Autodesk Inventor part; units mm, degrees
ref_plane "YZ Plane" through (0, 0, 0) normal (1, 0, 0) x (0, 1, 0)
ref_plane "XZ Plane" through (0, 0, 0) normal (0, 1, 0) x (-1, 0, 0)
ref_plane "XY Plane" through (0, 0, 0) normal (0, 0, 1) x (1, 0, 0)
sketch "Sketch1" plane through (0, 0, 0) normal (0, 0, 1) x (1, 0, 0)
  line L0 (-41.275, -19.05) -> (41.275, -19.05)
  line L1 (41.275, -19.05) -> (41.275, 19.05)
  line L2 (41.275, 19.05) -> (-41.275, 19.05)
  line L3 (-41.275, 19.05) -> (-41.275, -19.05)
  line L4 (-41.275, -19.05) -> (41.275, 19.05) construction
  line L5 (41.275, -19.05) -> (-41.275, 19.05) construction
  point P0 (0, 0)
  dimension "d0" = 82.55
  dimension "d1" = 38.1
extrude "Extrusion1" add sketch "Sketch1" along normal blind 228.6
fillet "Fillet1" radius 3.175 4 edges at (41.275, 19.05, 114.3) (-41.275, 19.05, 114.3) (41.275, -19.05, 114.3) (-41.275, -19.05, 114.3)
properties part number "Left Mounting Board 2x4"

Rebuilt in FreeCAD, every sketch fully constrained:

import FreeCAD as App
import Part
import Sketcher
Q = App.Units.Quantity


def edges_at(feature, points):
    """Names of the edges that pass closest to the given points."""
    edges = feature.Shape.Edges
    near = lambda p: min(range(len(edges)), key=lambda i: edges[i].distToShape(Part.Vertex(*p))[0])
    return sorted({f"Edge{near(p) + 1}" for p in points})

doc = App.newDocument("Part")
body = doc.addObject("PartDesign::Body", "Body")

# Sketch on XY plane
sketch1 = body.newObject("Sketcher::SketchObject", "Sketch")
sketch1.AttachmentSupport = (doc.getObject("XY_Plane"), [""])
sketch1.MapMode = "FlatFace"
sketch1.addGeometry([
    Part.LineSegment(App.Vector(-41, 19, 0), App.Vector(-41, -19, 0)),
    Part.LineSegment(App.Vector(-41, -19, 0), App.Vector(41, -19, 0)),
    Part.LineSegment(App.Vector(41, -19, 0), App.Vector(41, 19, 0)),
    Part.LineSegment(App.Vector(41, 19, 0), App.Vector(-41, 19, 0)),
], False)
sketch1.addConstraint([
    Sketcher.Constraint("Coincident", 0, 2, 1, 1),
    Sketcher.Constraint("Coincident", 1, 2, 2, 1),
    Sketcher.Constraint("Coincident", 2, 2, 3, 1),
    Sketcher.Constraint("Coincident", 3, 2, 0, 1),
    Sketcher.Constraint("Vertical", 0),
    Sketcher.Constraint("Horizontal", 1),
    Sketcher.Constraint("Vertical", 2),
    Sketcher.Constraint("Horizontal", 3),
    Sketcher.Constraint("Symmetric", 0, 2, 2, 2, -1, 1),
    Sketcher.Constraint("DistanceY", 0, 2, 0, 1, Q("1.5 in")),
    Sketcher.Constraint("DistanceX", 1, 1, 1, 2, Q("3.25 in")),
])
pad1 = body.newObject("PartDesign::Pad", "Pad")
pad1.Profile = sketch1
pad1.Length = Q("9 in")
doc.recompute()

fillet = body.newObject("PartDesign::Fillet", "Fillet")
fillet.Base = (pad1, edges_at(pad1, [
    (41.275, 19.05, 114.3),
    (-41.275, 19.05, 114.3),
    (41.275, -19.05, 114.3),
    (-41.275, -19.05, 114.3),
]))
fillet.Radius = Q("0.125 in")

doc.recompute()
